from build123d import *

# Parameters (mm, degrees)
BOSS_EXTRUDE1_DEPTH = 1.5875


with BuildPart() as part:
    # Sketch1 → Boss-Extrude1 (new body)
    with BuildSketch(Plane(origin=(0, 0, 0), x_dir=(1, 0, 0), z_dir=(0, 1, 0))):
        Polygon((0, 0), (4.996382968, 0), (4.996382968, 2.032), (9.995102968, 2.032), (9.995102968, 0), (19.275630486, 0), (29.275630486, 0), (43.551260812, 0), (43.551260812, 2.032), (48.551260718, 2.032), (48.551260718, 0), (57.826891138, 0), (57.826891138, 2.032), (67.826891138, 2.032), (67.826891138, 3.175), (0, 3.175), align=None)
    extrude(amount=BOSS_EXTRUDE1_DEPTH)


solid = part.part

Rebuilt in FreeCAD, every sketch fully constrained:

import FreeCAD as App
import Part
import Sketcher
Q = App.Units.Quantity


def add_polygon(sketch, points):
    """Adds a closed chain of lines whose ends are joined by coincident constraints."""
    first, n = sketch.GeometryCount, len(points)
    for a, b in zip(points, points[1:] + points[:1]):
        sketch.addGeometry(Part.LineSegment(App.Vector(*a, 0), App.Vector(*b, 0)), False)
    for i in range(n):
        sketch.addConstraint(Sketcher.Constraint("Coincident", first + i, 2, first + (i + 1) % n, 1))

doc = App.newDocument("Part")
params = doc.addObject("Spreadsheet::Sheet", "Params")
for row, (alias, value) in enumerate([
    ("sketch1_height", "0.08 in"),
    ("sketch1_height2", "0.045 in"),
    ("pad1_length", "0.0625 in"),
], start=1):
    params.set(f"A{row}", alias)
    params.set(f"B{row}", "=" + value)
    params.setAlias(f"B{row}", alias)

body = doc.addObject("PartDesign::Body", "Body")

# Sketch on XZ plane
sketch1 = doc.addObject("Sketcher::SketchObject", "Sketch")
body.addObject(sketch1)
sketch1.AttachmentSupport = (doc.XZ_Plane, [""])
sketch1.MapMode = "FlatFace"
add_polygon(sketch1, [(0, 0), (5, 0), (5, -2), (10, -2), (10, 0), (43.6, 0), (43.6, -2), (48.6, -2), (48.6, 0), (57.8, 0), (57.8, -2), (67.8, -2), (67.8, -3.2), (0, -3.2)])  # lines 0-13
sketch1.addConstraint([
    Sketcher.Constraint("Horizontal", 0),
    Sketcher.Constraint("Vertical", 1),
    Sketcher.Constraint("Horizontal", 2),
    Sketcher.Constraint("Vertical", 3),
    Sketcher.Constraint("Horizontal", 4),
    Sketcher.Constraint("Vertical", 5),
    Sketcher.Constraint("Horizontal", 6),
    Sketcher.Constraint("Vertical", 7),
    Sketcher.Constraint("Horizontal", 8),
    Sketcher.Constraint("Vertical", 9),
    Sketcher.Constraint("Horizontal", 10),
    Sketcher.Constraint("Vertical", 11),
    Sketcher.Constraint("Horizontal", 12),
    Sketcher.Constraint("Vertical", 13),
    Sketcher.Constraint("Coincident", 13, 2, -1, 1),
    Sketcher.Constraint("PointOnObject", 3, 2, -1),
    Sketcher.Constraint("PointOnObject", 7, 2, -1),
    Sketcher.Constraint("Horizontal", 2, 2, 5, 2),
    Sketcher.Constraint("Horizontal", 6, 2, 9, 2),
    Sketcher.Constraint("DistanceY", 1, 2, 1, 1, Q("0.08 in")),
    Sketcher.Constraint("DistanceY", 11, 2, 11, 1, Q("0.045 in")),
    Sketcher.Constraint("DistanceX", 2, 1, 2, 2, Q("0.1968 in")),
    Sketcher.Constraint("DistanceX", 6, 1, 6, 2, Q("5 mm")),
    Sketcher.Constraint("DistanceX", 10, 1, 10, 2, Q("10 mm")),
    Sketcher.Constraint("DistanceX", 8, 1, 8, 2, Q("9.27563 mm")),
    Sketcher.Constraint("DistanceX", 12, 2, 12, 1, Q("67.826891 mm")),
    Sketcher.Constraint("DistanceX", 0, 1, 0, 2, Q("4.996383 mm")),
])
sketch1.setExpression("Constraints[33]", "Params.sketch1_height")
sketch1.setExpression("Constraints[34]", "Params.sketch1_height2")
pad1 = doc.addObject("PartDesign::Pad", "Pad")
body.addObject(pad1)
pad1.Profile = sketch1
pad1.setExpression("Length", "Params.pad1_length")
pad1.Reversed = True

doc.recompute()
